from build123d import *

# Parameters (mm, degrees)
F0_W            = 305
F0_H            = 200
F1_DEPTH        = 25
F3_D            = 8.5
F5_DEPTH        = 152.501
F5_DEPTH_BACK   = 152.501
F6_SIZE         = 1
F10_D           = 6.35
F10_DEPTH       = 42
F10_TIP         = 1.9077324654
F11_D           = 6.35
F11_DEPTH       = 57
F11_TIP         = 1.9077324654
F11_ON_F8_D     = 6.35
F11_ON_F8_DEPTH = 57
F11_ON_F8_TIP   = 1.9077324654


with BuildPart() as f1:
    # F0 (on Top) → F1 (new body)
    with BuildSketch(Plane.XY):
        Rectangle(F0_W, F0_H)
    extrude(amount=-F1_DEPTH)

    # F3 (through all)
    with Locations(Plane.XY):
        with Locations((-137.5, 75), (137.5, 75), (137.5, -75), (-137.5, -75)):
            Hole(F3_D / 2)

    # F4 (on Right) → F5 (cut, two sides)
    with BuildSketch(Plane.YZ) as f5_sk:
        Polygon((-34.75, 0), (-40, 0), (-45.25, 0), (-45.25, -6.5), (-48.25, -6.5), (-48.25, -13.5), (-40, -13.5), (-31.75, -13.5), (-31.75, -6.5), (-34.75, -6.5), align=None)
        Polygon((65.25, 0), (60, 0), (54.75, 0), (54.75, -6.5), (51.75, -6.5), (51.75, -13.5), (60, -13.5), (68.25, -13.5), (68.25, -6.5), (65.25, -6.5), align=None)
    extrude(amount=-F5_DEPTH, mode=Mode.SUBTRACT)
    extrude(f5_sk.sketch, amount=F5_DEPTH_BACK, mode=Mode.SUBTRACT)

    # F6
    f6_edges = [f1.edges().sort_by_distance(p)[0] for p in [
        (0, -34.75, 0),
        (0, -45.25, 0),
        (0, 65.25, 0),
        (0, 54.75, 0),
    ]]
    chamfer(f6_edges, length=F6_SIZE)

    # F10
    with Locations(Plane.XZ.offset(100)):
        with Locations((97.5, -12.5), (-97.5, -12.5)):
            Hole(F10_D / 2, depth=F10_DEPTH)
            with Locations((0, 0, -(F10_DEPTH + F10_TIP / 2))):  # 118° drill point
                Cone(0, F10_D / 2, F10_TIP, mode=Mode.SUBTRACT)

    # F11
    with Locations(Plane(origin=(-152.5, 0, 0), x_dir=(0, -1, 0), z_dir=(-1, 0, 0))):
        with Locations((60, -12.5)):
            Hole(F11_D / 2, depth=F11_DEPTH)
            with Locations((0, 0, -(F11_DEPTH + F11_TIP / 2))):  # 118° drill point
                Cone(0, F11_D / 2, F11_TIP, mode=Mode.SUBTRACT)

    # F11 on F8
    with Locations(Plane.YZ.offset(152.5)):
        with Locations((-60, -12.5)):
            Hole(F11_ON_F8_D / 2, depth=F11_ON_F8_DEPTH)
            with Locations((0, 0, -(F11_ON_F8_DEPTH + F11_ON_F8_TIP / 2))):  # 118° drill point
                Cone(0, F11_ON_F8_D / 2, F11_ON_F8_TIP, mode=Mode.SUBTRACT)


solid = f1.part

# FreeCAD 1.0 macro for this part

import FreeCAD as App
import Part
import Sketcher
from FreeCAD import Vector


def edges_at(feature, points):
    """Names of the edges that pass closest to the given points."""
    edges = feature.Shape.Edges
    near = lambda p: min(range(len(edges)), key=lambda i: edges[i].distToShape(Part.Vertex(*p))[0])
    return sorted({f"Edge{near(p) + 1}" for p in points})

doc = App.newDocument("Part")
body = doc.addObject("PartDesign::Body", "Body")

# Sketch on XY plane
sketch1 = body.newObject("Sketcher::SketchObject", "Sketch")
sketch1.AttachmentSupport = (doc.getObject("XY_Plane"), [""])
sketch1.MapMode = "FlatFace"
sketch1.addGeometry([
    Part.LineSegment(Vector(-152.5, 100, 0), Vector(-152.5, -100, 0)),
    Part.LineSegment(Vector(-152.5, -100, 0), Vector(152.5, -100, 0)),
    Part.LineSegment(Vector(152.5, -100, 0), Vector(152.5, 100, 0)),
    Part.LineSegment(Vector(152.5, 100, 0), Vector(-152.5, 100, 0)),
], False)
sketch1.addConstraint([
    Sketcher.Constraint("Coincident", 0, 2, 1, 1),
    Sketcher.Constraint("Coincident", 1, 2, 2, 1),
    Sketcher.Constraint("Coincident", 2, 2, 3, 1),
    Sketcher.Constraint("Coincident", 3, 2, 0, 1),
    Sketcher.Constraint("Vertical", 0),
    Sketcher.Constraint("Horizontal", 1),
    Sketcher.Constraint("Vertical", 2),
    Sketcher.Constraint("Horizontal", 3),
    Sketcher.Constraint("Symmetric", 0, 2, 2, 2, -1, 1),
    Sketcher.Constraint("DistanceX", 1, 1, 1, 2, 305.0),
    Sketcher.Constraint("DistanceY", 0, 2, 0, 1, 200.0),
])
pad1 = body.newObject("PartDesign::Pad", "Pad")
pad1.Profile = sketch1
pad1.Length = 25
pad1.Reversed = True

# Sketch on XY plane
sketch2 = body.newObject("Sketcher::SketchObject", "Sketch001")
sketch2.AttachmentSupport = (doc.getObject("XY_Plane"), [""])
sketch2.MapMode = "FlatFace"
sketch2.addGeometry([
    Part.Circle(Vector(-137.5, 75, 0), Vector(0, 0, 1), 4.25),
    Part.Circle(Vector(137.5, 75, 0), Vector(0, 0, 1), 4.25),
    Part.Circle(Vector(137.5, -75, 0), Vector(0, 0, 1), 4.25),
    Part.Circle(Vector(-137.5, -75, 0), Vector(0, 0, 1), 4.25),
], False)
sketch2.addConstraint([
    Sketcher.Constraint("Equal", 0, 1),
    Sketcher.Constraint("Equal", 1, 2),
    Sketcher.Constraint("Equal", 2, 3),
    Sketcher.Constraint("Symmetric", 0, 3, 2, 3, -1, 1),
    Sketcher.Constraint("Symmetric", 1, 3, 3, 3, -1, 1),
    Sketcher.Constraint("Symmetric", 0, 3, 1, 3, -2),
    Sketcher.Constraint("Diameter", 0, 8.5),
    Sketcher.Constraint("DistanceY", -1, 1, 0, 3, 75.0),
    Sketcher.Constraint("DistanceX", 0, 3, 1, 3, 275.0),
])
doc.recompute()
hole = body.newObject("PartDesign::Hole", "Hole")
hole.Profile = sketch2
hole.ThreadType = "None"
hole.Diameter = 8.5
hole.DepthType = "ThroughAll"

# Sketch on YZ plane
sketch3 = body.newObject("Sketcher::SketchObject", "Sketch002")
sketch3.AttachmentSupport = (doc.getObject("YZ_Plane"), [""])
sketch3.MapMode = "FlatFace"
sketch3.addGeometry([
    Part.LineSegment(Vector(-34.75, 0, 0), Vector(-45.25, 0, 0)),  # 0
    Part.LineSegment(Vector(-45.25, 0, 0), Vector(-45.25, -6.5, 0)),  # 1
    Part.LineSegment(Vector(-45.25, -6.5, 0), Vector(-48.25, -6.5, 0)),  # 2
    Part.LineSegment(Vector(-48.25, -6.5, 0), Vector(-48.25, -13.5, 0)),  # 3
    Part.LineSegment(Vector(-48.25, -13.5, 0), Vector(-31.75, -13.5, 0)),  # 4
    Part.LineSegment(Vector(-31.75, -13.5, 0), Vector(-31.75, -6.5, 0)),  # 5
    Part.LineSegment(Vector(-31.75, -6.5, 0), Vector(-34.75, -6.5, 0)),  # 6
    Part.LineSegment(Vector(-34.75, -6.5, 0), Vector(-34.75, 0, 0)),  # 7
    Part.LineSegment(Vector(65.25, 0, 0), Vector(54.75, 0, 0)),  # 8
    Part.LineSegment(Vector(54.75, 0, 0), Vector(54.75, -6.5, 0)),  # 9
    Part.LineSegment(Vector(54.75, -6.5, 0), Vector(51.75, -6.5, 0)),  # 10
    Part.LineSegment(Vector(51.75, -6.5, 0), Vector(51.75, -13.5, 0)),  # 11
    Part.LineSegment(Vector(51.75, -13.5, 0), Vector(68.25, -13.5, 0)),  # 12
    Part.LineSegment(Vector(68.25, -13.5, 0), Vector(68.25, -6.5, 0)),  # 13
    Part.LineSegment(Vector(68.25, -6.5, 0), Vector(65.25, -6.5, 0)),  # 14
    Part.LineSegment(Vector(65.25, -6.5, 0), Vector(65.25, 0, 0)),  # 15
], False)
sketch3.addConstraint([
    Sketcher.Constraint("Coincident", 0, 2, 1, 1),
    Sketcher.Constraint("Coincident", 1, 2, 2, 1),
    Sketcher.Constraint("Coincident", 2, 2, 3, 1),
    Sketcher.Constraint("Coincident", 3, 2, 4, 1),
    Sketcher.Constraint("Coincident", 4, 2, 5, 1),
    Sketcher.Constraint("Coincident", 5, 2, 6, 1),
    Sketcher.Constraint("Coincident", 6, 2, 7, 1),
    Sketcher.Constraint("Coincident", 7, 2, 0, 1),
    Sketcher.Constraint("Coincident", 8, 2, 9, 1),
    Sketcher.Constraint("Coincident", 9, 2, 10, 1),
    Sketcher.Constraint("Coincident", 10, 2, 11, 1),
    Sketcher.Constraint("Coincident", 11, 2, 12, 1),
    Sketcher.Constraint("Coincident", 12, 2, 13, 1),
    Sketcher.Constraint("Coincident", 13, 2, 14, 1),
    Sketcher.Constraint("Coincident", 14, 2, 15, 1),
    Sketcher.Constraint("Coincident", 15, 2, 8, 1),
    Sketcher.Constraint("Horizontal", 0),
    Sketcher.Constraint("Vertical", 1),
    Sketcher.Constraint("Horizontal", 2),
    Sketcher.Constraint("Vertical", 3),
    Sketcher.Constraint("Horizontal", 4),
    Sketcher.Constraint("Vertical", 5),
    Sketcher.Constraint("Horizontal", 6),
    Sketcher.Constraint("Vertical", 7),
    Sketcher.Constraint("Horizontal", 8),
    Sketcher.Constraint("Vertical", 9),
    Sketcher.Constraint("Horizontal", 10),
    Sketcher.Constraint("Vertical", 11),
    Sketcher.Constraint("Horizontal", 12),
    Sketcher.Constraint("Vertical", 13),
    Sketcher.Constraint("Horizontal", 14),
    Sketcher.Constraint("Vertical", 15),
    Sketcher.Constraint("PointOnObject", 0, 2, -1),
    Sketcher.Constraint("PointOnObject", 8, 2, -1),
    Sketcher.Constraint("Horizontal", 2, 2, 5, 2),
    Sketcher.Constraint("Horizontal", 6, 2, 9, 2),
    Sketcher.Constraint("Horizontal", 4, 2, 11, 2),
    Sketcher.Constraint("Horizontal", 10, 2, 13, 2),
    Sketcher.Constraint("Equal", 2, 6),
    Sketcher.Constraint("Equal", 0, 8),
    Sketcher.Constraint("Equal", 6, 10),
    Sketcher.Constraint("Equal", 4, 12),
    Sketcher.Constraint("DistanceX", 2, 2, 2, 1, 3.0),
    Sketcher.Constraint("DistanceY", 3, 2, 3, 1, 7.0),
    Sketcher.Constraint("DistanceX", 0, 2, 0, 1, 10.5),
    Sketcher.Constraint("DistanceY", 1, 2, 1, 1, 6.5),
    Sketcher.Constraint("DistanceX", 0, 2, 8, 2, 100.0),
    Sketcher.Constraint("DistanceX", 0, 2, -1, 1, 45.25),
])
pocket1 = body.newObject("PartDesign::Pocket", "Pocket")
pocket1.Profile = sketch3
pocket1.Type = "ThroughAll"
pocket1.Midplane = True
doc.recompute()

chamfer = body.newObject("PartDesign::Chamfer", "Chamfer")
chamfer.Base = (pocket1, edges_at(pocket1, [
    (0, -34.75, 0),
    (0, -45.25, 0),
    (0, 65.25, 0),
    (0, 54.75, 0),
]))
chamfer.Size = 1

# Sketch on XZ plane
sketch4 = body.newObject("Sketcher::SketchObject", "Sketch003")
sketch4.AttachmentSupport = (doc.getObject("XZ_Plane"), [""])
sketch4.MapMode = "FlatFace"
sketch4.AttachmentOffset = App.Placement(Vector(0, 0, 100), App.Rotation())
sketch4.addGeometry([
    Part.Circle(Vector(97.5, -12.5, 0), Vector(0, 0, 1), 3.175),
    Part.Circle(Vector(-97.5, -12.5, 0), Vector(0, 0, 1), 3.175),
], False)
sketch4.addConstraint([
    Sketcher.Constraint("Equal", 0, 1),
    Sketcher.Constraint("Symmetric", 0, 3, 1, 3, -2),
    Sketcher.Constraint("Diameter", 0, 6.35),
    Sketcher.Constraint("DistanceX", 1, 3, 0, 3, 195.0),
    Sketcher.Constraint("DistanceY", 0, 3, -1, 1, 12.5),
])
doc.recompute()
hole2 = body.newObject("PartDesign::Hole", "Hole001")
hole2.Profile = sketch4
hole2.ThreadType = "None"
hole2.Diameter = 6.35
hole2.DepthType = "Dimension"
hole2.Depth = 42
hole2.DrillPoint = "Angled"
hole2.DrillPointAngle = 118

# Sketch on YZ plane
sketch5 = body.newObject("Sketcher::SketchObject", "Sketch004")
sketch5.AttachmentSupport = (doc.getObject("YZ_Plane"), [""])
sketch5.MapMode = "FlatFace"
sketch5.AttachmentOffset = App.Placement(Vector(0, 0, -152.5), App.Rotation())
sketch5.addGeometry(Part.Circle(Vector(-60, -12.5, 0), Vector(0, 0, 1), 3.175), False)
sketch5.addConstraint([
    Sketcher.Constraint("Diameter", 0, 6.35),
    Sketcher.Constraint("DistanceX", 0, 3, -1, 1, 60.0),
    Sketcher.Constraint("DistanceY", 0, 3, -1, 1, 12.5),
])
doc.recompute()
hole3 = body.newObject("PartDesign::Hole", "Hole002")
hole3.Profile = sketch5
hole3.ThreadType = "None"
hole3.Diameter = 6.35
hole3.DepthType = "Dimension"
hole3.Depth = 57
hole3.DrillPoint = "Angled"
hole3.DrillPointAngle = 118
hole3.Reversed = True

# Sketch on YZ plane
sketch6 = body.newObject("Sketcher::SketchObject", "Sketch005")
sketch6.AttachmentSupport = (doc.getObject("YZ_Plane"), [""])
sketch6.MapMode = "FlatFace"
sketch6.AttachmentOffset = App.Placement(Vector(0, 0, 152.5), App.Rotation())
sketch6.addGeometry(Part.Circle(Vector(-60, -12.5, 0), Vector(0, 0, 1), 3.175), False)
sketch6.addConstraint([
    Sketcher.Constraint("Diameter", 0, 6.35),
    Sketcher.Constraint("DistanceX", 0, 3, -1, 1, 60.0),
    Sketcher.Constraint("DistanceY", 0, 3, -1, 1, 12.5),
])
doc.recompute()
hole4 = body.newObject("PartDesign::Hole", "Hole003")
hole4.Profile = sketch6
hole4.ThreadType = "None"
hole4.Diameter = 6.35
hole4.DepthType = "Dimension"
hole4.Depth = 57
hole4.DrillPoint = "Angled"
hole4.DrillPointAngle = 118

doc.recompute()
